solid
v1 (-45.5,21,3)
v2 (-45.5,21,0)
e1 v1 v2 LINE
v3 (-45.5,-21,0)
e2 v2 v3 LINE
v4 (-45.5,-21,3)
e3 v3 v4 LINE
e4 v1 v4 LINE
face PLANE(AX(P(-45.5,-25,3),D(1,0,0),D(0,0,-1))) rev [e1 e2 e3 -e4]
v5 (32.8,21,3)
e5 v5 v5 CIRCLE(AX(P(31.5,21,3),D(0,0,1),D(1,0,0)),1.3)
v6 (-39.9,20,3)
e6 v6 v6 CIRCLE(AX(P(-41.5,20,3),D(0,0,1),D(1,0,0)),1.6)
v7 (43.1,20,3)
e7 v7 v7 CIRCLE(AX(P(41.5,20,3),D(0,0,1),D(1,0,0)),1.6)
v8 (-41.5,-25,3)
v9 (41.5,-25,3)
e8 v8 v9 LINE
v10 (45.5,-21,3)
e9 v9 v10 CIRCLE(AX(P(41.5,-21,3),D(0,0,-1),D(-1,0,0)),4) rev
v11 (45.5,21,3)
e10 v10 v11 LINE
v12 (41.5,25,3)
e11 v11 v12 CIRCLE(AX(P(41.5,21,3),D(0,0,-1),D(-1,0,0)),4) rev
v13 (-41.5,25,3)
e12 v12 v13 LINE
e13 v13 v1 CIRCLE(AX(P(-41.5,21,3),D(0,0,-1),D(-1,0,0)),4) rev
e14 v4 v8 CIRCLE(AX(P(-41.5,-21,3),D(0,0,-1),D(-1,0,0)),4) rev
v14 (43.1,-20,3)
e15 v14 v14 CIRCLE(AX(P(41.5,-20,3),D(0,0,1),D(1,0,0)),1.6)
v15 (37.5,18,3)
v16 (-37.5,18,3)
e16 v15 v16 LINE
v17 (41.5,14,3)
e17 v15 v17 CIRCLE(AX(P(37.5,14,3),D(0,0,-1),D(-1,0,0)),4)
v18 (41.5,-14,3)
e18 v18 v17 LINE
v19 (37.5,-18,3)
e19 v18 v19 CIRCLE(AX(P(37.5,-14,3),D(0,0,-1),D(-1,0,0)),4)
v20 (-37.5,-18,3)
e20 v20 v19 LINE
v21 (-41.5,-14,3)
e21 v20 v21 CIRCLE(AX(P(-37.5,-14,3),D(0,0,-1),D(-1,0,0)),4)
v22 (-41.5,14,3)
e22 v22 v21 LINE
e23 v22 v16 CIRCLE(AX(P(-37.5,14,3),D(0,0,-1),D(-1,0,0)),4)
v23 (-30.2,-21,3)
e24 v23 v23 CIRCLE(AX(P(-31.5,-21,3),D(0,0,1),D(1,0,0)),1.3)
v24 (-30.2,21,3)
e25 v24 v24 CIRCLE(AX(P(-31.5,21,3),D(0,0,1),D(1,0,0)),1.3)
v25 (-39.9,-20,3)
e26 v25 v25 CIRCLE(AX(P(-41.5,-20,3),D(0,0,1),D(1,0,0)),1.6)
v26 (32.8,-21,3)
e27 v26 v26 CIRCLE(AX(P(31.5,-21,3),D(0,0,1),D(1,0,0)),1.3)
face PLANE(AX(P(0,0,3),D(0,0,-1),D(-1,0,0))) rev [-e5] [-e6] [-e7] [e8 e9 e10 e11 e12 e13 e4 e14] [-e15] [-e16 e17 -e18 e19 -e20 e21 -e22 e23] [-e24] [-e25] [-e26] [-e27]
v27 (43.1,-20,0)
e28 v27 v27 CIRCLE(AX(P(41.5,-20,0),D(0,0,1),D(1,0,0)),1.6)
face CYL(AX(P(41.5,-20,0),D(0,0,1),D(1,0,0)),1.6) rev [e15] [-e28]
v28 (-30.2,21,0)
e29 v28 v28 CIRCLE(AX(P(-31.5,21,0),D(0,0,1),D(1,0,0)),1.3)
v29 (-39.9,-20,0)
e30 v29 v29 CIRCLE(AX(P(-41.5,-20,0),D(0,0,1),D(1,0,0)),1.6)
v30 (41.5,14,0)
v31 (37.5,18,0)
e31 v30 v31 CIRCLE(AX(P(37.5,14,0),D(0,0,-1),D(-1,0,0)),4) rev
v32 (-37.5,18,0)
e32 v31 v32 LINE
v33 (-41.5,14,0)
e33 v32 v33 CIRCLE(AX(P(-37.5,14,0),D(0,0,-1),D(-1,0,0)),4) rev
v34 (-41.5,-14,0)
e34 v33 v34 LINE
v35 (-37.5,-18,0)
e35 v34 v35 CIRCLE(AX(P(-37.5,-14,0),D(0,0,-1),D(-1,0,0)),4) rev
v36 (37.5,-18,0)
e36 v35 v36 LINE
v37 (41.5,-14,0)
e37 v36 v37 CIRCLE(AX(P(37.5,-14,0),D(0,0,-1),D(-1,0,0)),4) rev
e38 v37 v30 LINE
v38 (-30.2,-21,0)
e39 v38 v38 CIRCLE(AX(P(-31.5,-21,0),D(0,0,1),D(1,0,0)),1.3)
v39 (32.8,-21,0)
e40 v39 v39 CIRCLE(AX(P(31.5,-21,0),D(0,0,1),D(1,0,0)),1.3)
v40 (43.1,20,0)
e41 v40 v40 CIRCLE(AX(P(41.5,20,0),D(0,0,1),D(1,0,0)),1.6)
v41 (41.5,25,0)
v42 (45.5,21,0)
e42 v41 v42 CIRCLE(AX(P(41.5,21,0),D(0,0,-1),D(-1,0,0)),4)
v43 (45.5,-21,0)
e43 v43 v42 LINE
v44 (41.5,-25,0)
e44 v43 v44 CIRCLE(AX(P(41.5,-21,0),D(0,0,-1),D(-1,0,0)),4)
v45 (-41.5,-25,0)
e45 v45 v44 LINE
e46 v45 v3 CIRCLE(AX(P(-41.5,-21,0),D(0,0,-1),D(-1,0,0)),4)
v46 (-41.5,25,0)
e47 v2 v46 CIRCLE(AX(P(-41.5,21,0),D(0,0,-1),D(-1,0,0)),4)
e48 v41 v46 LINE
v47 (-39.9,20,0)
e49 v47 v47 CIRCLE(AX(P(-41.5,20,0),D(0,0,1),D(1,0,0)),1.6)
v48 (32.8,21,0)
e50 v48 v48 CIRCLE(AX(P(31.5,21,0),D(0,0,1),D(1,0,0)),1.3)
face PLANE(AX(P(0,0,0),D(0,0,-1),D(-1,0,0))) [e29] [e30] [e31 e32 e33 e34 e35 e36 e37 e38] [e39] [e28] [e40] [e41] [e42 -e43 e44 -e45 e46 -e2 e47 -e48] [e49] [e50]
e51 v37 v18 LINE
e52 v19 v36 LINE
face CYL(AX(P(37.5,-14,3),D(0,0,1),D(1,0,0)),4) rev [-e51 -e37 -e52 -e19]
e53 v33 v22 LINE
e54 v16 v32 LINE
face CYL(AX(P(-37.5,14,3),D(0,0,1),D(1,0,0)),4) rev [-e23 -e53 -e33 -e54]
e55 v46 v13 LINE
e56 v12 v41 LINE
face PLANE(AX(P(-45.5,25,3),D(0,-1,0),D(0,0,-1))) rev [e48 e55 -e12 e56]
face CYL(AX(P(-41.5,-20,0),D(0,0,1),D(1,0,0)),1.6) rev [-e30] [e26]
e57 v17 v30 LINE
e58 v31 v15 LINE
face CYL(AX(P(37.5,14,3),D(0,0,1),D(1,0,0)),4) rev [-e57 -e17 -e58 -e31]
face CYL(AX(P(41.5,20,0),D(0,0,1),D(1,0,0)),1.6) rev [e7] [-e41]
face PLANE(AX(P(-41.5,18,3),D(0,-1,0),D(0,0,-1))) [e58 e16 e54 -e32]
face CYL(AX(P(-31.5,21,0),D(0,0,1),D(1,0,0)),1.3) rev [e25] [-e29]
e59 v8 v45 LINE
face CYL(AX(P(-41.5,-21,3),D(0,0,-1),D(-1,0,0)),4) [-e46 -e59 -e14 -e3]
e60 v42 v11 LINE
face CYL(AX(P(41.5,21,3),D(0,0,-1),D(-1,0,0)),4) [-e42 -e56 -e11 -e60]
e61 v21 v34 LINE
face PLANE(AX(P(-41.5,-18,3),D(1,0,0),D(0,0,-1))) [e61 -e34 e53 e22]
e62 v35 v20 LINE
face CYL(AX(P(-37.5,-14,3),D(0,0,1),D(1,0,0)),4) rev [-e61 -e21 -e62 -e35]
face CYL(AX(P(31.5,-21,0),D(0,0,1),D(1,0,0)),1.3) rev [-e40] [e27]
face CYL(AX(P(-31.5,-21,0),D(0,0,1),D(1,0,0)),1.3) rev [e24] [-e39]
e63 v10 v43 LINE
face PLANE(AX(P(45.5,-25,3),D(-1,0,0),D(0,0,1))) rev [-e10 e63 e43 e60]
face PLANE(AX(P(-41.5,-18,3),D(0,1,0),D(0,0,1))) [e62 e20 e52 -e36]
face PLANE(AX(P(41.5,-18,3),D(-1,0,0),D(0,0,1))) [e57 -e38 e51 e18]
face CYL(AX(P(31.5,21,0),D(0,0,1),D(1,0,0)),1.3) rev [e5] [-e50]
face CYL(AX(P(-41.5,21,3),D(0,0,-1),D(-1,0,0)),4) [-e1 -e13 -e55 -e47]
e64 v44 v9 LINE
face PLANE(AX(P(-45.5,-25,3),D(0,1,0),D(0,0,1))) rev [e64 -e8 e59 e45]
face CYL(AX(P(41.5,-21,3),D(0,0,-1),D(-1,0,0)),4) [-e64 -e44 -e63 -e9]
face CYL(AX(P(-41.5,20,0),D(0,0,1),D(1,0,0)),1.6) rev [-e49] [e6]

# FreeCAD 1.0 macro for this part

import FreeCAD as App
import Part
import Sketcher

V = App.Vector


def edges_at(feature, points):
    """Names of the edges that pass closest to the given points."""
    edges = feature.Shape.Edges
    near = lambda p: min(range(len(edges)), key=lambda i: edges[i].distToShape(Part.Vertex(*p))[0])
    return sorted({f"Edge{near(p) + 1}" for p in points})

doc = App.newDocument("Part")
body = doc.addObject("PartDesign::Body", "Body")

# Sketch on XY plane
sketch1 = doc.addObject("Sketcher::SketchObject", "Sketch")
body.addObject(sketch1)
sketch1.AttachmentSupport = (doc.XY_Plane, [""])
sketch1.MapMode = "FlatFace"
sketch1.addGeometry([
    Part.LineSegment(V(-46, 25, 0), V(-46, -25, 0)),  # 0
    Part.LineSegment(V(-46, -25, 0), V(46, -25, 0)),  # 1
    Part.LineSegment(V(46, -25, 0), V(46, 25, 0)),  # 2
    Part.LineSegment(V(46, 25, 0), V(-46, 25, 0)),  # 3
    Part.LineSegment(V(42, -18, 0), V(-42, -18, 0)),  # 4
    Part.LineSegment(V(-42, -18, 0), V(-42, 18, 0)),  # 5
    Part.LineSegment(V(-42, 18, 0), V(42, 18, 0)),  # 6
    Part.LineSegment(V(42, 18, 0), V(42, -18, 0)),  # 7
], False)
sketch1.addConstraint([
    Sketcher.Constraint("Coincident", 0, 2, 1, 1),
    Sketcher.Constraint("Coincident", 1, 2, 2, 1),
    Sketcher.Constraint("Coincident", 2, 2, 3, 1),
    Sketcher.Constraint("Coincident", 3, 2, 0, 1),
    Sketcher.Constraint("Coincident", 4, 2, 5, 1),
    Sketcher.Constraint("Coincident", 5, 2, 6, 1),
    Sketcher.Constraint("Coincident", 6, 2, 7, 1),
    Sketcher.Constraint("Coincident", 7, 2, 4, 1),
    Sketcher.Constraint("Vertical", 0),
    Sketcher.Constraint("Horizontal", 1),
    Sketcher.Constraint("Vertical", 2),
    Sketcher.Constraint("Horizontal", 3),
    Sketcher.Constraint("Horizontal", 4),
    Sketcher.Constraint("Vertical", 5),
    Sketcher.Constraint("Horizontal", 6),
    Sketcher.Constraint("Vertical", 7),
    Sketcher.Constraint("Symmetric", 0, 2, 2, 2, -1, 1),
    Sketcher.Constraint("Symmetric", 4, 2, 6, 2, -1, 1),
    Sketcher.Constraint("DistanceX", 1, 1, 1, 2, 91.0),
    Sketcher.Constraint("DistanceX", 4, 2, 4, 1, 83.0),
    Sketcher.Constraint("DistanceY", 0, 2, 0, 1, 50.0),
    Sketcher.Constraint("DistanceY", 5, 1, 5, 2, 36.0),
])
pad1 = doc.addObject("PartDesign::Pad", "Pad")
body.addObject(pad1)
pad1.Profile = sketch1
pad1.Length = 3

# Sketch on XY plane
sketch2 = doc.addObject("Sketcher::SketchObject", "Sketch001")
body.addObject(sketch2)
sketch2.AttachmentSupport = (doc.XY_Plane, [""])
sketch2.MapMode = "FlatFace"
sketch2.AttachmentOffset = App.Placement(V(0, 0, 3), App.Rotation())
sketch2.addGeometry([
    Part.Circle(V(31.5, 21, 0), V(0, 0, 1), 1.3),
    Part.Circle(V(31.5, -21, 0), V(0, 0, 1), 1.3),
    Part.Circle(V(-31.5, -21, 0), V(0, 0, 1), 1.3),
    Part.Circle(V(-31.5, 21, 0), V(0, 0, 1), 1.3),
], False)
sketch2.addConstraint([
    Sketcher.Constraint("Equal", 0, 1),
    Sketcher.Constraint("Equal", 1, 2),
    Sketcher.Constraint("Equal", 2, 3),
    Sketcher.Constraint("Symmetric", 0, 3, 2, 3, -1, 1),
    Sketcher.Constraint("Symmetric", 1, 3, 3, 3, -1, 1),
    Sketcher.Constraint("Symmetric", 1, 3, 2, 3, -2),
    Sketcher.Constraint("Diameter", 0, 2.6),
    Sketcher.Constraint("DistanceY", -1, 1, 0, 3, 21.0),
    Sketcher.Constraint("DistanceX", 2, 3, 1, 3, 63.0),
])
pocket1 = doc.addObject("PartDesign::Pocket", "Pocket")
body.addObject(pocket1)
pocket1.Profile = sketch2
pocket1.Length = 3

# Sketch on XY plane
sketch3 = doc.addObject("Sketcher::SketchObject", "Sketch002")
body.addObject(sketch3)
sketch3.AttachmentSupport = (doc.XY_Plane, [""])
sketch3.MapMode = "FlatFace"
sketch3.AttachmentOffset = App.Placement(V(0, 0, 3), App.Rotation())
sketch3.addGeometry([
    Part.Circle(V(41.5, 20, 0), V(0, 0, 1), 1.6),
    Part.Circle(V(41.5, -20, 0), V(0, 0, 1), 1.6),
    Part.Circle(V(-41.5, -20, 0), V(0, 0, 1), 1.6),
    Part.Circle(V(-41.5, 20, 0), V(0, 0, 1), 1.6),
], False)
sketch3.addConstraint([
    Sketcher.Constraint("Equal", 0, 1),
    Sketcher.Constraint("Equal", 1, 2),
    Sketcher.Constraint("Equal", 2, 3),
    Sketcher.Constraint("Symmetric", 0, 3, 2, 3, -1, 1),
    Sketcher.Constraint("Symmetric", 1, 3, 3, 3, -1, 1),
    Sketcher.Constraint("Symmetric", 1, 3, 2, 3, -2),
    Sketcher.Constraint("Diameter", 0, 3.2),
    Sketcher.Constraint("DistanceY", -1, 1, 0, 3, 20.0),
    Sketcher.Constraint("DistanceX", 2, 3, 1, 3, 83.0),
])
pocket2 = doc.addObject("PartDesign::Pocket", "Pocket001")
body.addObject(pocket2)
pocket2.Profile = sketch3
pocket2.Length = 3
doc.recompute()

fillet = doc.addObject("PartDesign::Fillet", "Fillet")
body.addObject(fillet)
fillet.Base = (pocket2, edges_at(pocket2, [
    (41.5, -18, 1.5),
    (41.5, 18, 1.5),
    (-41.5, 18, 1.5),
    (-41.5, -18, 1.5),
    (45.5, -25, 1.5),
    (-45.5, -25, 1.5),
    (-45.5, 25, 1.5),
    (45.5, 25, 1.5),
]))
fillet.Radius = 4

# Sketch on XY plane
sketch4 = doc.addObject("Sketcher::SketchObject", "Sketch003")
body.addObject(sketch4)
sketch4.AttachmentSupport = (doc.XY_Plane, [""])
sketch4.MapMode = "FlatFace"
sketch4.addGeometry([
    Part.LineSegment(V(76, 18, 0), V(76, -18, 0)),
    Part.LineSegment(V(76, -18, 0), V(46, -18, 0)),
    Part.LineSegment(V(46, -18, 0), V(46, 18, 0)),
    Part.LineSegment(V(46, 18, 0), V(76, 18, 0)),
], False)
sketch4.addConstraint([
    Sketcher.Constraint("Coincident", 0, 2, 1, 1),
    Sketcher.Constraint("Coincident", 1, 2, 2, 1),
    Sketcher.Constraint("Coincident", 2, 2, 3, 1),
    Sketcher.Constraint("Coincident", 3, 2, 0, 1),
    Sketcher.Constraint("Vertical", 0),
    Sketcher.Constraint("Horizontal", 1),
    Sketcher.Constraint("Vertical", 2),
    Sketcher.Constraint("Horizontal", 3),
    Sketcher.Constraint("DistanceX", 1, 2, 1, 1, 30.0),
    Sketcher.Constraint("DistanceY", 0, 2, 0, 1, 35.0),
    Sketcher.Constraint("DistanceX", -1, 1, 0, 2, 75.5),
    Sketcher.Constraint("DistanceY", 0, 2, -1, 1, 17.5),
])
pad2 = doc.addObject("PartDesign::Pad", "Pad001")
body.addObject(pad2)
pad2.Profile = sketch4
pad2.Length = 3

# Sketch on XY plane
sketch5 = doc.addObject("Sketcher::SketchObject", "Sketch004")
body.addObject(sketch5)
sketch5.AttachmentSupport = (doc.XY_Plane, [""])
sketch5.MapMode = "FlatFace"
sketch5.addGeometry([
    Part.Circle(V(70.5, -12, 0), V(0, 0, 1), 1.2),
    Part.Circle(V(70.5, 12, 0), V(0, 0, 1), 1.2),
], False)
sketch5.addConstraint([
    Sketcher.Constraint("Equal", 0, 1),
    Sketcher.Constraint("Symmetric", 0, 3, 1, 3, -1),
    Sketcher.Constraint("Diameter", 0, 2.5),
    Sketcher.Constraint("DistanceY", 0, 3, -1, 1, 12.0),
    Sketcher.Constraint("DistanceX", -1, 1, 0, 3, 70.5),
])
pocket3 = doc.addObject("PartDesign::Pocket", "Pocket002")
body.addObject(pocket3)
pocket3.Profile = sketch5
pocket3.Length = 10
pocket3.Reversed = True
doc.recompute()

fillet2 = doc.addObject("PartDesign::Fillet", "Fillet001")
body.addObject(fillet2)
fillet2.Base = (pocket3, edges_at(pocket3, [
    (45.5, 17.5, 1.5),
    (45.5, -17.5, 1.5),
    (75.5, -17.5, 1.5),
    (75.5, 17.5, 1.5),
]))
fillet2.Radius = 3

# Sketch on XY plane
sketch6 = doc.addObject("Sketcher::SketchObject", "Sketch005")
body.addObject(sketch6)
sketch6.AttachmentSupport = (doc.XY_Plane, [""])
sketch6.MapMode = "FlatFace"
sketch6.addGeometry([
    Part.LineSegment(V(66, 14, 0), V(66, -14, 0)),
    Part.LineSegment(V(66, -14, 0), V(48, -14, 0)),
    Part.LineSegment(V(48, -14, 0), V(48, 14, 0)),
    Part.LineSegment(V(48, 14, 0), V(66, 14, 0)),
], False)
sketch6.addConstraint([
    Sketcher.Constraint("Coincident", 0, 2, 1, 1),
    Sketcher.Constraint("Coincident", 1, 2, 2, 1),
    Sketcher.Constraint("Coincident", 2, 2, 3, 1),
    Sketcher.Constraint("Coincident", 3, 2, 0, 1),
    Sketcher.Constraint("Vertical", 0),
    Sketcher.Constraint("Horizontal", 1),
    Sketcher.Constraint("Vertical", 2),
    Sketcher.Constraint("Horizontal", 3),
    Sketcher.Constraint("DistanceX", 1, 2, 1, 1, 18.0),
    Sketcher.Constraint("DistanceY", 0, 2, 0, 1, 27.0),
    Sketcher.Constraint("DistanceX", -1, 1, 0, 2, 66.5),
    Sketcher.Constraint("DistanceY", 0, 2, -1, 1, 13.5),
])
pocket4 = doc.addObject("PartDesign::Pocket", "Pocket003")
body.addObject(pocket4)
pocket4.Profile = sketch6
pocket4.Length = 10
pocket4.Reversed = True
doc.recompute()

fillet3 = doc.addObject("PartDesign::Fillet", "Fillet002")
body.addObject(fillet3)
fillet3.Base = (pocket4, edges_at(pocket4, [
    (66.5, -13.5, 1.5),
    (66.5, 13.5, 1.5),
    (48.5, 13.5, 1.5),
    (48.5, -13.5, 1.5),
]))
fillet3.Radius = 2

# Sketch on XY plane
sketch7 = doc.addObject("Sketcher::SketchObject", "Sketch006")
body.addObject(sketch7)
sketch7.AttachmentSupport = (doc.XY_Plane, [""])
sketch7.MapMode = "FlatFace"
sketch7.addGeometry([
    Part.LineSegment(V(19, 35, 0), V(19, 25, 0)),  # 0
    Part.LineSegment(V(19, 25, 0), V(-19, 25, 0)),  # 1
    Part.LineSegment(V(-19, 25, 0), V(-19, 35, 0)),  # 2
    Part.LineSegment(V(-19, 35, 0), V(19, 35, 0)),  # 3
    Part.Circle(V(16, 32, 0), V(0, 0, 1), 1.6),  # 4
    Part.Circle(V(-16, 32, 0), V(0, 0, 1), 1.6),  # 5
    Part.LineSegment(V(19, -25, 0), V(19, -35, 0)),  # 6
    Part.LineSegment(V(19, -35, 0), V(-19, -35, 0)),  # 7
    Part.LineSegment(V(-19, -35, 0), V(-19, -25, 0)),  # 8
    Part.LineSegment(V(-19, -25, 0), V(19, -25, 0)),  # 9
    Part.Circle(V(16, -32, 0), V(0, 0, 1), 1.6),  # 10
    Part.Circle(V(-16, -32, 0), V(0, 0, 1), 1.6),  # 11
], False)
sketch7.addConstraint([
    Sketcher.Constraint("Coincident", 0, 2, 1, 1),
    Sketcher.Constraint("Coincident", 1, 2, 2, 1),
    Sketcher.Constraint("Coincident", 2, 2, 3, 1),
    Sketcher.Constraint("Coincident", 3, 2, 0, 1),
    Sketcher.Constraint("Coincident", 6, 2, 7, 1),
    Sketcher.Constraint("Coincident", 7, 2, 8, 1),
    Sketcher.Constraint("Coincident", 8, 2, 9, 1),
    Sketcher.Constraint("Coincident", 9, 2, 6, 1),
    Sketcher.Constraint("Vertical", 0),
    Sketcher.Constraint("Horizontal", 1),
    Sketcher.Constraint("Vertical", 2),
    Sketcher.Constraint("Horizontal", 3),
    Sketcher.Constraint("Vertical", 6),
    Sketcher.Constraint("Horizontal", 7),
    Sketcher.Constraint("Vertical", 8),
    Sketcher.Constraint("Horizontal", 9),
    Sketcher.Constraint("Equal", 4, 5),
    Sketcher.Constraint("Equal", 5, 10),
    Sketcher.Constraint("Equal", 10, 11),
    Sketcher.Constraint("Symmetric", 5, 3, 10, 3, -1, 1),
    Sketcher.Constraint("Symmetric", 4, 3, 11, 3, -1, 1),
    Sketcher.Constraint("Symmetric", 2, 2, 6, 2, -1, 1),
    Sketcher.Constraint("Symmetric", 0, 2, 8, 2, -1, 1),
    Sketcher.Constraint("Symmetric", 4, 3, 5, 3, -2),
    Sketcher.Constraint("Vertical", 3, 2, 6, 2),
    Sketcher.Constraint("Diameter", 4, 3.2),
    Sketcher.Constraint("DistanceX", 1, 2, 1, 1, 38.0),
    Sketcher.Constraint("DistanceY", 0, 2, 0, 1, 10.0),
    Sketcher.Constraint("DistanceX", -1, 1, 4, 3, 16.0),
    Sketcher.Constraint("DistanceY", -1, 1, 4, 3, 32.0),
    Sketcher.Constraint("DistanceY", -1, 1, 0, 2, 25.0),
])
pad3 = doc.addObject("PartDesign::Pad", "Pad002")
body.addObject(pad3)
pad3.Profile = sketch7
pad3.Length = 3
doc.recompute()

fillet4 = doc.addObject("PartDesign::Fillet", "Fillet003")
body.addObject(fillet4)
fillet4.Base = (pad3, edges_at(pad3, [
    (19, 35, 1.5),
    (-19, 35, 1.5),
    (-19, -35, 1.5),
    (19, -35, 1.5),
]))
fillet4.Radius = 2
doc.recompute()

fillet5 = doc.addObject("PartDesign::Fillet", "Fillet004")
body.addObject(fillet5)
fillet5.Base = (fillet4, edges_at(fillet4, [
    (19, 25, 1.5),
    (-19, 25, 1.5),
    (-19, -25, 1.5),
    (19, -25, 1.5),
]))
fillet5.Radius = 2

# Sketch on XY plane
sketch8 = doc.addObject("Sketcher::SketchObject", "Sketch007")
body.addObject(sketch8)
sketch8.AttachmentSupport = (doc.XY_Plane, [""])
sketch8.MapMode = "FlatFace"
sketch8.AttachmentOffset = App.Placement(V(0, 0, 3), App.Rotation())
sketch8.addGeometry([
    Part.LineSegment(V(-21, 35, 0), V(-21, 25, 0)),  # 0
    Part.LineSegment(V(-21, 25, 0), V(21, 25, 0)),  # 1
    Part.LineSegment(V(21, 25, 0), V(21, 35, 0)),  # 2
    Part.LineSegment(V(21, 35, 0), V(-21, 35, 0)),  # 3
    Part.LineSegment(V(-21, -25, 0), V(-21, -35, 0)),  # 4
    Part.LineSegment(V(-21, -35, 0), V(21, -35, 0)),  # 5
    Part.LineSegment(V(21, -35, 0), V(21, -25, 0)),  # 6
    Part.LineSegment(V(21, -25, 0), V(-21, -25, 0)),  # 7
], False)
sketch8.addConstraint([
    Sketcher.Constraint("Coincident", 0, 2, 1, 1),
    Sketcher.Constraint("Coincident", 1, 2, 2, 1),
    Sketcher.Constraint("Coincident", 2, 2, 3, 1),
    Sketcher.Constraint("Coincident", 3, 2, 0, 1),
    Sketcher.Constraint("Coincident", 4, 2, 5, 1),
    Sketcher.Constraint("Coincident", 5, 2, 6, 1),
    Sketcher.Constraint("Coincident", 6, 2, 7, 1),
    Sketcher.Constraint("Coincident", 7, 2, 4, 1),
    Sketcher.Constraint("Vertical", 0),
    Sketcher.Constraint("Horizontal", 1),
    Sketcher.Constraint("Vertical", 2),
    Sketcher.Constraint("Horizontal", 3),
    Sketcher.Constraint("Vertical", 4),
    Sketcher.Constraint("Horizontal", 5),
    Sketcher.Constraint("Vertical", 6),
    Sketcher.Constraint("Horizontal", 7),
    Sketcher.Constraint("Symmetric", 2, 2, 4, 2, -1, 1),
    Sketcher.Constraint("Symmetric", 0, 2, 6, 2, -1, 1),
    Sketcher.Constraint("Vertical", 3, 2, 4, 2),
    Sketcher.Constraint("DistanceX", 1, 1, 1, 2, 42.0),
    Sketcher.Constraint("DistanceY", 0, 2, 0, 1, 10.0),
    Sketcher.Constraint("DistanceY", -1, 1, 0, 2, 25.0),
])
pocket5 = doc.addObject("PartDesign::Pocket", "Pocket004")
body.addObject(pocket5)
pocket5.Profile = sketch8
pocket5.Length = 10

# Sketch on XY plane
sketch9 = doc.addObject("Sketcher::SketchObject", "Sketch008")
body.addObject(sketch9)
sketch9.AttachmentSupport = (doc.XY_Plane, [""])
sketch9.MapMode = "FlatFace"
sketch9.AttachmentOffset = App.Placement(V(0, 0, 3), App.Rotation())
sketch9.addGeometry([
    Part.LineSegment(V(46, 20, 0), V(46, -20, 0)),
    Part.LineSegment(V(46, -20, 0), V(76, -20, 0)),
    Part.LineSegment(V(76, -20, 0), V(76, 20, 0)),
    Part.LineSegment(V(76, 20, 0), V(46, 20, 0)),
], False)
sketch9.addConstraint([
    Sketcher.Constraint("Coincident", 0, 2, 1, 1),
    Sketcher.Constraint("Coincident", 1, 2, 2, 1),
    Sketcher.Constraint("Coincident", 2, 2, 3, 1),
    Sketcher.Constraint("Coincident", 3, 2, 0, 1),
    Sketcher.Constraint("Vertical", 0),
    Sketcher.Constraint("Horizontal", 1),
    Sketcher.Constraint("Vertical", 2),
    Sketcher.Constraint("Horizontal", 3),
    Sketcher.Constraint("DistanceX", 1, 1, 1, 2, 30.0),
    Sketcher.Constraint("DistanceY", 0, 2, 0, 1, 41.0),
    Sketcher.Constraint("DistanceX", -1, 1, 0, 2, 45.5),
    Sketcher.Constraint("DistanceY", 0, 2, -1, 1, 20.5),
])
pocket6 = doc.addObject("PartDesign::Pocket", "Pocket005")
body.addObject(pocket6)
pocket6.Profile = sketch9
pocket6.Length = 10

doc.recompute()
